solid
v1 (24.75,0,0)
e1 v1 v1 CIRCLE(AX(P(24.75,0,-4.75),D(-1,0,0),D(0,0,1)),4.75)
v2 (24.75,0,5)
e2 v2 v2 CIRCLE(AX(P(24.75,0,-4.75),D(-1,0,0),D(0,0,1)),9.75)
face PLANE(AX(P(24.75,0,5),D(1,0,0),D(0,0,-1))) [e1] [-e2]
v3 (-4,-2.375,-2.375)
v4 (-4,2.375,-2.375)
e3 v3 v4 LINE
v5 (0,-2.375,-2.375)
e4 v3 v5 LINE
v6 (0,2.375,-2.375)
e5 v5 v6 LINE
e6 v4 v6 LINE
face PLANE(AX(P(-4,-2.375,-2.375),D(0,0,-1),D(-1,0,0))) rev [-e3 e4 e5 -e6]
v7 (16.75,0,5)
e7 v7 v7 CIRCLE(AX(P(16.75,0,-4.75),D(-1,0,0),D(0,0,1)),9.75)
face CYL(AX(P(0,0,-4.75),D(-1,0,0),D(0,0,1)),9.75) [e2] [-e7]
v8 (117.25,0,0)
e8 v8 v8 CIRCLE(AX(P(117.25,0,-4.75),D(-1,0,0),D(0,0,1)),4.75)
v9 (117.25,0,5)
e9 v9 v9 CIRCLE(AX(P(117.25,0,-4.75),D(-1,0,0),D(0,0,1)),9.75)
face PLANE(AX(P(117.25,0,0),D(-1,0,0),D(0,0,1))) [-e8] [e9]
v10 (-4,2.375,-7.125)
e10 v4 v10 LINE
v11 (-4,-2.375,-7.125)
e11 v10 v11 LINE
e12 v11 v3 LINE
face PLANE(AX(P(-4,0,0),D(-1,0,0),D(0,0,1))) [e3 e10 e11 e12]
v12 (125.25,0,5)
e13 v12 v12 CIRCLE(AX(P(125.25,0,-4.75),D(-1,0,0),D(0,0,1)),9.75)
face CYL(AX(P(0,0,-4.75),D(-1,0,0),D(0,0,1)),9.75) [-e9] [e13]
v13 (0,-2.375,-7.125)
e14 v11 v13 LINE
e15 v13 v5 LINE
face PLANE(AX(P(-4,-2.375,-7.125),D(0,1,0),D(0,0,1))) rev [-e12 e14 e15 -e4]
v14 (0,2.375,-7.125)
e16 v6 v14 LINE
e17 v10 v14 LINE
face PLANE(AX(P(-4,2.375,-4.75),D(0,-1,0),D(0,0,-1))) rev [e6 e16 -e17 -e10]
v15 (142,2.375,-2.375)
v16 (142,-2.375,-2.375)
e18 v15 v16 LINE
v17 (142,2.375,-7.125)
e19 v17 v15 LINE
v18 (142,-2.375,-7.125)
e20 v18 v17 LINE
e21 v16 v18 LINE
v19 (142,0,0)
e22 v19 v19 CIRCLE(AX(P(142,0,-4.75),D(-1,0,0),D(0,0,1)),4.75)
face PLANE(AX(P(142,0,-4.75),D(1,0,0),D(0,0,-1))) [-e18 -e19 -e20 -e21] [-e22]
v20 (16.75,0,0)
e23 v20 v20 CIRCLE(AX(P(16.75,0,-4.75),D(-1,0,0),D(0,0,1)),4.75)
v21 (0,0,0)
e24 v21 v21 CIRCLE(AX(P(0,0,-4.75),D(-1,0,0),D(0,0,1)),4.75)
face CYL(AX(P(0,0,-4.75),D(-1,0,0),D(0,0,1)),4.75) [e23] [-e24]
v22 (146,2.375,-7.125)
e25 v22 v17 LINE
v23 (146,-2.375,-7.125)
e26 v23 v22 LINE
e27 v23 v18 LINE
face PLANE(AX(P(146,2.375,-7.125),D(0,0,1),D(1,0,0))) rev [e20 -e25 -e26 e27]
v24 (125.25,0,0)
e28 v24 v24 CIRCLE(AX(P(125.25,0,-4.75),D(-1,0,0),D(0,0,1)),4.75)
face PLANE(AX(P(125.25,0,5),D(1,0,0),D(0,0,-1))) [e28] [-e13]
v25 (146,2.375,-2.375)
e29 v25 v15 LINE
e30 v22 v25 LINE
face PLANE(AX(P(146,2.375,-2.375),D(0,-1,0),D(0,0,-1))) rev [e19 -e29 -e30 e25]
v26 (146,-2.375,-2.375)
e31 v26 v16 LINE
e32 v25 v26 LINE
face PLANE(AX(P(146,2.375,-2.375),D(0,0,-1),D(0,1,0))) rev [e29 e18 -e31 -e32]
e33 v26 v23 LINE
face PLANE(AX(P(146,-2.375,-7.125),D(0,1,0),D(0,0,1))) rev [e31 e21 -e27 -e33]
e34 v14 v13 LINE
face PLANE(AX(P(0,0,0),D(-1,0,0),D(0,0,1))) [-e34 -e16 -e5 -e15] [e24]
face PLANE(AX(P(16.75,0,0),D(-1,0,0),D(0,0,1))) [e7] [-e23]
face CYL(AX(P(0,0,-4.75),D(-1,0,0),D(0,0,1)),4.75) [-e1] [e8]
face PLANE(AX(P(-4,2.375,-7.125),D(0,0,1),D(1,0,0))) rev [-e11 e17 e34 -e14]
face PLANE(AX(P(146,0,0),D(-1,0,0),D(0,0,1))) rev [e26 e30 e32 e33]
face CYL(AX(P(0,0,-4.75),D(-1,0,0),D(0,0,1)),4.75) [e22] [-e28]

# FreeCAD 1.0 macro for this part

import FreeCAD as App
import Part
import Sketcher


def add_polygon(sketch, points):
    """Adds a closed chain of lines whose ends are joined by coincident constraints."""
    first, n = sketch.GeometryCount, len(points)
    for a, b in zip(points, points[1:] + points[:1]):
        sketch.addGeometry(Part.LineSegment(App.Vector(*a, 0), App.Vector(*b, 0)), False)
    for i in range(n):
        sketch.addConstraint(Sketcher.Constraint("Coincident", first + i, 2, first + (i + 1) % n, 1))

doc = App.newDocument("Part")
body = doc.addObject("PartDesign::Body", "Body")

# Sketch on XZ plane
sketch1 = body.newObject("Sketcher::SketchObject", "Sketch")
sketch1.AttachmentSupport = (doc.getObject("XZ_Plane"), [""])
sketch1.MapMode = "FlatFace"
add_polygon(sketch1, [(0, -4.8), (0, 0), (16.8, 0), (16.8, 5), (24.8, 5), (24.8, 0), (117.2, 0), (117.2, 5), (125.2, 5), (125.2, 0), (142, 0), (142, -4.8)])  # lines 0-11
sketch1.addGeometry(Part.LineSegment(App.Vector(0, -4.8, 0), App.Vector(142, -4.8, 0)), True)  # axis
sketch1.addConstraint([
    Sketcher.Constraint("Vertical", 0),
    Sketcher.Constraint("Horizontal", 1),
    Sketcher.Constraint("Vertical", 2),
    Sketcher.Constraint("Horizontal", 3),
    Sketcher.Constraint("Vertical", 4),
    Sketcher.Constraint("Horizontal", 5),
    Sketcher.Constraint("Vertical", 6),
    Sketcher.Constraint("Horizontal", 7),
    Sketcher.Constraint("Vertical", 8),
    Sketcher.Constraint("Horizontal", 9),
    Sketcher.Constraint("Vertical", 10),
    Sketcher.Constraint("Horizontal", 11),
    Sketcher.Constraint("Horizontal", 12),
    Sketcher.Constraint("Coincident", 0, 2, -1, 1),
    Sketcher.Constraint("Coincident", 12, 1, 11, 2),
    Sketcher.Constraint("PointOnObject", 4, 2, -1),
    Sketcher.Constraint("PointOnObject", 8, 2, -1),
    Sketcher.Constraint("Horizontal", 3, 2, 6, 2),
    Sketcher.Constraint("Vertical", 9, 2, 12, 2),
    Sketcher.Constraint("Equal", 3, 7),
    Sketcher.Constraint("Equal", 1, 9),
    Sketcher.Constraint("DistanceX", 3, 1, 3, 2, 8.0),
    Sketcher.Constraint("DistanceX", 11, 2, 11, 1, 142.0),
    Sketcher.Constraint("DistanceY", 2, 1, 2, 2, 5.0),
    Sketcher.Constraint("DistanceX", 5, 1, 5, 2, 92.5),
    Sketcher.Constraint("DistanceY", 0, 1, 0, 2, 4.75),
])
revolution = body.newObject("PartDesign::Revolution", "Revolution")
revolution.Profile = sketch1
revolution.ReferenceAxis = (sketch1, ["Axis0"])
revolution.Angle = 360

# Sketch on YZ plane
sketch2 = body.newObject("Sketcher::SketchObject", "Sketch001")
sketch2.AttachmentSupport = (doc.getObject("YZ_Plane"), [""])
sketch2.MapMode = "FlatFace"
sketch2.AttachmentOffset = App.Placement(App.Vector(0, 0, 142), App.Rotation())
add_polygon(sketch2, [(2.4, -2.4), (-2.4, -2.4), (-2.4, -7.1), (2.4, -7.1)])  # lines 0-3
sketch2.addConstraint([
    Sketcher.Constraint("Horizontal", 0),
    Sketcher.Constraint("Vertical", 1),
    Sketcher.Constraint("Horizontal", 2),
    Sketcher.Constraint("Vertical", 3),
    Sketcher.Constraint("Equal", 2, 1),
    Sketcher.Constraint("DistanceX", 0, 2, 0, 1, 4.75),
    Sketcher.Constraint("DistanceX", 0, 2, -1, 1, 2.375),
    Sketcher.Constraint("DistanceY", 0, 2, -1, 1, 2.375),
])
pad1 = body.newObject("PartDesign::Pad", "Pad")
pad1.Profile = sketch2
pad1.Length = 4

# Sketch on YZ plane
sketch3 = body.newObject("Sketcher::SketchObject", "Sketch002")
sketch3.AttachmentSupport = (doc.getObject("YZ_Plane"), [""])
sketch3.MapMode = "FlatFace"
add_polygon(sketch3, [(2.4, -7.1), (-2.4, -7.1), (-2.4, -2.4), (2.4, -2.4)])  # lines 0-3
sketch3.addConstraint([
    Sketcher.Constraint("Horizontal", 0),
    Sketcher.Constraint("Vertical", 1),
    Sketcher.Constraint("Horizontal", 2),
    Sketcher.Constraint("Vertical", 3),
    Sketcher.Constraint("Equal", 2, 1),
    Sketcher.Constraint("DistanceX", 0, 2, 0, 1, 4.75),
    Sketcher.Constraint("DistanceX", 0, 2, -1, 1, 2.375),
    Sketcher.Constraint("DistanceY", 0, 2, -1, 1, 7.125),
])
pad2 = body.newObject("PartDesign::Pad", "Pad001")
pad2.Profile = sketch3
pad2.Length = 4
pad2.Reversed = True

doc.recompute()
